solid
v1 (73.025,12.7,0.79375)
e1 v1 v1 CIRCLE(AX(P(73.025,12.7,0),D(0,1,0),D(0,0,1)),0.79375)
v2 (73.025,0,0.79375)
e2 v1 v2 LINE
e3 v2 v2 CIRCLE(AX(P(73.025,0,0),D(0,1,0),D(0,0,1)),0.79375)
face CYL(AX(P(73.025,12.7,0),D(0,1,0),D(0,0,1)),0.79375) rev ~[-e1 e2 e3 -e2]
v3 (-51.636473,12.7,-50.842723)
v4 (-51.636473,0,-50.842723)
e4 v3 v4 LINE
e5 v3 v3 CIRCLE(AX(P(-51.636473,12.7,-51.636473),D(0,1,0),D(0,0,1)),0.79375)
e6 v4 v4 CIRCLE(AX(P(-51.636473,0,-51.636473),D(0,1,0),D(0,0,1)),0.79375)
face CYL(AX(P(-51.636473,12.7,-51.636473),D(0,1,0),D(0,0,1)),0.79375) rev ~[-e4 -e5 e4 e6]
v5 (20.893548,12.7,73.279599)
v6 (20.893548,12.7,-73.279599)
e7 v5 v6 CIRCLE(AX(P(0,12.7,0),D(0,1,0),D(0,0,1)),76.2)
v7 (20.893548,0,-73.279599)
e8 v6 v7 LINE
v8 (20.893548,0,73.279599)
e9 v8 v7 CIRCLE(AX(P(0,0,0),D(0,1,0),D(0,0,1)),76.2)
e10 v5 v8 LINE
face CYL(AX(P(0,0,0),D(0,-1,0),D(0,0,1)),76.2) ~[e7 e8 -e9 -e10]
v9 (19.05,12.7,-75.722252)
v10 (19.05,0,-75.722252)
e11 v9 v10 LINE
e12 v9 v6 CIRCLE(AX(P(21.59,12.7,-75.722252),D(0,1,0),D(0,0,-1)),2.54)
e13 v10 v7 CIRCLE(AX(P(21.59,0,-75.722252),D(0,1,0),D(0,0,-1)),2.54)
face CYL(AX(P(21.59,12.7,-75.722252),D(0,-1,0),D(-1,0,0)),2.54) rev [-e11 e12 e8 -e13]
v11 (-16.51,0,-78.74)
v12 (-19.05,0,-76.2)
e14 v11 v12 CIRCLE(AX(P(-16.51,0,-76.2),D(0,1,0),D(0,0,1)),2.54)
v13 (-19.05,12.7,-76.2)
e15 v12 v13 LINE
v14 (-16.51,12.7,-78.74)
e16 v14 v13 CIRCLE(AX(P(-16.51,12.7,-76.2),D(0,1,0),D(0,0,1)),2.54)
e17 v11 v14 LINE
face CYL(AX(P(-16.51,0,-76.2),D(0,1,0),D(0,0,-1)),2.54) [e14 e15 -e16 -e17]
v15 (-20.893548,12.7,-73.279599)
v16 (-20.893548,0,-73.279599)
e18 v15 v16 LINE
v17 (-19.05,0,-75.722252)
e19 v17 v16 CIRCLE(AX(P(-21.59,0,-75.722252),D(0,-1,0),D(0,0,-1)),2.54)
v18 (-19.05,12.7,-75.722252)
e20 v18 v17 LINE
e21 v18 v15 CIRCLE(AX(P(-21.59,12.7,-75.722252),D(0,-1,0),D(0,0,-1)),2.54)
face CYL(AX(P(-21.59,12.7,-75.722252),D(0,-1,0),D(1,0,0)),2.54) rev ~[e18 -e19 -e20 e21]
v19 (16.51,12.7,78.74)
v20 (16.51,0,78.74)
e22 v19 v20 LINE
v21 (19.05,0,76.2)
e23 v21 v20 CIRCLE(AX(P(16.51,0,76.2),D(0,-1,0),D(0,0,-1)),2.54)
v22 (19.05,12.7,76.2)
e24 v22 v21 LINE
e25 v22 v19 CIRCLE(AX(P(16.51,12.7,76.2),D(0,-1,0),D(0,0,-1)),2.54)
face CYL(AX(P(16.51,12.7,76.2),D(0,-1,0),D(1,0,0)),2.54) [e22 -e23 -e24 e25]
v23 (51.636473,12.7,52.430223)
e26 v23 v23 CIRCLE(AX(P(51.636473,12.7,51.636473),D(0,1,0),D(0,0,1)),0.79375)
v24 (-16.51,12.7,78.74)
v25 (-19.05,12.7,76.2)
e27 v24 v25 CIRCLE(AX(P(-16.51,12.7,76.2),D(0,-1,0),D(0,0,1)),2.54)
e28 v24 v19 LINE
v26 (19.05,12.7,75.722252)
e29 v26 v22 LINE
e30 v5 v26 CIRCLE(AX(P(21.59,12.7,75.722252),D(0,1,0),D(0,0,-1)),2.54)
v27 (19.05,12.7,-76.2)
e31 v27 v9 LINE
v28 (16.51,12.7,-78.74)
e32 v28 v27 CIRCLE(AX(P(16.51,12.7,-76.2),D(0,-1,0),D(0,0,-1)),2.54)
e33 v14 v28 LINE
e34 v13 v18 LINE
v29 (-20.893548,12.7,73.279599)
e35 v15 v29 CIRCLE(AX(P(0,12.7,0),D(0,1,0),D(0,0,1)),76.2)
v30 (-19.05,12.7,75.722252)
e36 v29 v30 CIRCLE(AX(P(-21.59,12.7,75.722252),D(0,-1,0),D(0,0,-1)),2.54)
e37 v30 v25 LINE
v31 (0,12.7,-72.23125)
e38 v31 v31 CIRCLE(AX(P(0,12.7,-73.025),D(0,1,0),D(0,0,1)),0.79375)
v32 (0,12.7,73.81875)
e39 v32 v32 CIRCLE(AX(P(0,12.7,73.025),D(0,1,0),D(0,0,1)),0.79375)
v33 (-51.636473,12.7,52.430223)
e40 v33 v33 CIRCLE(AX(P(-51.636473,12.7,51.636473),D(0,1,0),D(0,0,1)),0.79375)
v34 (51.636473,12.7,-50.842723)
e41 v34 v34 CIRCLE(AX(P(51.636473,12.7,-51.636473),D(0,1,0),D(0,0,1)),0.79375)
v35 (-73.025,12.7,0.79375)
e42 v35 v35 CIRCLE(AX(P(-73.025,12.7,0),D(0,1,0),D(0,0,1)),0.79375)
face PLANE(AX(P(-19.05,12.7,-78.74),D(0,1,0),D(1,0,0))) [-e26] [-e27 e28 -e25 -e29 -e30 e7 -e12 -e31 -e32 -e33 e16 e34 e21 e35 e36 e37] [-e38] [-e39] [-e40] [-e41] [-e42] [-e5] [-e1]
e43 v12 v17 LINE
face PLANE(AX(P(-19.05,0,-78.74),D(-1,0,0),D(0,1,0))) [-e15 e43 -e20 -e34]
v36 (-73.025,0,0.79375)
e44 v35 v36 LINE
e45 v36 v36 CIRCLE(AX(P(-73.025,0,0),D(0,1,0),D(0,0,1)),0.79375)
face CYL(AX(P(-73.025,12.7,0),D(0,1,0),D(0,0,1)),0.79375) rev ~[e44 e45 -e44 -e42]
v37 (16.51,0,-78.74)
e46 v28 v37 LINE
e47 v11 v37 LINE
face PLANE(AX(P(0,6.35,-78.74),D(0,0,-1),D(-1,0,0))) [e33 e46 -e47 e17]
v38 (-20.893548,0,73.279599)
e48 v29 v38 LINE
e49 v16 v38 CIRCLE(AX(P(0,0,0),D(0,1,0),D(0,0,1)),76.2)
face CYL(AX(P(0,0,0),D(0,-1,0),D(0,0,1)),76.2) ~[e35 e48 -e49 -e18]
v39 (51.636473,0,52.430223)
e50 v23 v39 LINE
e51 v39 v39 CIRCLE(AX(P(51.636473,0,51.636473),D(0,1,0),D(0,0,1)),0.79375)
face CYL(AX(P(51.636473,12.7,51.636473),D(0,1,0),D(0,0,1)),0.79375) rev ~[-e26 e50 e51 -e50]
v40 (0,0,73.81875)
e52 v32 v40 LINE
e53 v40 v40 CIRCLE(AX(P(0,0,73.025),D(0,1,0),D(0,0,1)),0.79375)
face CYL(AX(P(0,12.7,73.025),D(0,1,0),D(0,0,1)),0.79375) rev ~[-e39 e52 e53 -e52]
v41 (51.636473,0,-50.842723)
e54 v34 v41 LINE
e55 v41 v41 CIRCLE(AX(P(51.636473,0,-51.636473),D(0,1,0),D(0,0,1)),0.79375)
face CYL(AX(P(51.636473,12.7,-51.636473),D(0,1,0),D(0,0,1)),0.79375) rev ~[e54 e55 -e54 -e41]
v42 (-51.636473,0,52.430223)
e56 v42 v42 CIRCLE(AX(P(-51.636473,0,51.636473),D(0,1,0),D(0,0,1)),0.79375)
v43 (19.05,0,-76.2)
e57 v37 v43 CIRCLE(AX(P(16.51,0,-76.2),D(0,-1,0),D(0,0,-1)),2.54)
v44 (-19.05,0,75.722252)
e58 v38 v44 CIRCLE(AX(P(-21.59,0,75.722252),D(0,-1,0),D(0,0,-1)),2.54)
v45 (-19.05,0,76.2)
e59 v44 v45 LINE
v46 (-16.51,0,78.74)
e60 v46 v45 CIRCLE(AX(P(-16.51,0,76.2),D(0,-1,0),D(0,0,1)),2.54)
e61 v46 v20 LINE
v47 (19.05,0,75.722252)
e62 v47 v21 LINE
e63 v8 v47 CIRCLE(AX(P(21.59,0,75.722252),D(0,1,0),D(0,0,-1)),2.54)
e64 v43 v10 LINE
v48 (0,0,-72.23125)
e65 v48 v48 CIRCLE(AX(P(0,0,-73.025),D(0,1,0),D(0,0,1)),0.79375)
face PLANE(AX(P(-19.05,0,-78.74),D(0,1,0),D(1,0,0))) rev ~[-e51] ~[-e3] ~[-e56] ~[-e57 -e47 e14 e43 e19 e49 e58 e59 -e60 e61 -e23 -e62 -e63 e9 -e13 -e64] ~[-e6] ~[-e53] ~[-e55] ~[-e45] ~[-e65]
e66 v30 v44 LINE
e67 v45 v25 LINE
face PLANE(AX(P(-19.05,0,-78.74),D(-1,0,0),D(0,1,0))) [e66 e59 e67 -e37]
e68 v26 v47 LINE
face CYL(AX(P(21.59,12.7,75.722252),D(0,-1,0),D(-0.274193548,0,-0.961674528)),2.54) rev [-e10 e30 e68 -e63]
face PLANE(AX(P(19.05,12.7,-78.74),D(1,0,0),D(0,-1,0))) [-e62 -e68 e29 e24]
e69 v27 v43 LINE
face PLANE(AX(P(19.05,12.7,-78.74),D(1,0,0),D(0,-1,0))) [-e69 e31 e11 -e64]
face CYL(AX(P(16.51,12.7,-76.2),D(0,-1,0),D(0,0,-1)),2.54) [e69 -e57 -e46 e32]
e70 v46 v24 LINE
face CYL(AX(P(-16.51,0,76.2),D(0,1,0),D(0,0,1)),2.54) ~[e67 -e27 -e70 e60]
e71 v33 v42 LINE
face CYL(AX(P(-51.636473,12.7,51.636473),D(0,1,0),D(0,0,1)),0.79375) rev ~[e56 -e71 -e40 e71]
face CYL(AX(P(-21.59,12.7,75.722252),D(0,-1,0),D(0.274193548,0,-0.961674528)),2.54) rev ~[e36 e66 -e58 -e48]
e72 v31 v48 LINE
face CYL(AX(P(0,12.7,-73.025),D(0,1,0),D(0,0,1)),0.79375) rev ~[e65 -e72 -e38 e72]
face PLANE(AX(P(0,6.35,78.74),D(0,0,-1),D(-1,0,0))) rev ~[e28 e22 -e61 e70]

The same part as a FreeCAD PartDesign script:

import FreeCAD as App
import Part
import Sketcher
Q = App.Units.Quantity


def edges_at(feature, points):
    """Names of the edges that pass closest to the given points."""
    edges = feature.Shape.Edges
    near = lambda p: min(range(len(edges)), key=lambda i: edges[i].distToShape(Part.Vertex(*p))[0])
    return sorted({f"Edge{near(p) + 1}" for p in points})


def add_polygon(sketch, points):
    """Adds a closed chain of lines whose ends are joined by coincident constraints."""
    first, n = sketch.GeometryCount, len(points)
    for a, b in zip(points, points[1:] + points[:1]):
        sketch.addGeometry(Part.LineSegment(App.Vector(*a, 0), App.Vector(*b, 0)), False)
    for i in range(n):
        sketch.addConstraint(Sketcher.Constraint("Coincident", first + i, 2, first + (i + 1) % n, 1))

doc = App.newDocument("Part")
body = doc.addObject("PartDesign::Body", "Body")

sketch1 = body.newObject("Sketcher::SketchObject", "Sketch")
sketch1.AttachmentSupport = (doc.getObject("XZ_Plane"), [""])
sketch1.MapMode = "FlatFace"
sketch1.addGeometry(Part.Circle(App.Vector(0, 0, 0), App.Vector(0, 0, 1), 76), False)
sketch1.addConstraint([
    Sketcher.Constraint("Coincident", 0, 3, -1, 1),
    Sketcher.Constraint("Diameter", 0, Q("6 in")),
])
pad1 = body.newObject("PartDesign::Pad", "Pad")
pad1.Profile = sketch1
pad1.Length = Q("0.5 in")
pad1.Reversed = True

sketch2 = body.newObject("Sketcher::SketchObject", "Sketch001")
sketch2.AttachmentSupport = (doc.getObject("XY_Plane"), [""])
sketch2.MapMode = "FlatFace"
add_polygon(sketch2, [(-19, 0), (19, 0), (19, 13), (-19, 13)])
sketch2.addConstraint([
    Sketcher.Constraint("Horizontal", 0),
    Sketcher.Constraint("Vertical", 1),
    Sketcher.Constraint("Horizontal", 2),
    Sketcher.Constraint("Vertical", 3),
    Sketcher.Constraint("Symmetric", 0, 2, 3, 2, -1, 1),
    Sketcher.Constraint("DistanceX", 0, 1, 0, 2, Q("1.5 in")),
    Sketcher.Constraint("DistanceY", 1, 1, 1, 2, Q("0.5 in")),
])
pad2 = body.newObject("PartDesign::Pad", "Pad001")
pad2.Profile = sketch2
pad2.Type = "TwoLengths"
pad2.Length = Q("3.1 in")
pad2.Length2 = Q("3.1 in")
doc.recompute()

fillet = body.newObject("PartDesign::Fillet", "Fillet")
fillet.Base = (pad2, edges_at(pad2, [
    (-19.05, 6.35, -78.74),
    (19.05, 6.35, -78.74),
    (-19.05, 6.35, -73.78),
    (-19.05, 6.35, 73.78),
    (19.05, 6.35, 73.78),
    (19.05, 6.35, -73.78),
    (19.05, 6.35, 78.74),
    (-19.05, 6.35, 78.74),
]))
fillet.Radius = Q("0.1 in")

sketch3 = body.newObject("Sketcher::SketchObject", "Sketch002")
sketch3.AttachmentSupport = (doc.getObject("XZ_Plane"), [""])
sketch3.MapMode = "FlatFace"
sketch3.AttachmentOffset = App.Placement(App.Vector(0, 0, -0.5 * 25.4), App.Rotation())
sketch3.addGeometry([
    Part.Circle(App.Vector(73, 0, 0), App.Vector(0, 0, 1), 0.8),
    Part.Circle(App.Vector(51.6, 51.6, 0), App.Vector(0, 0, 1), 0.8),
    Part.Circle(App.Vector(0, 73, 0), App.Vector(0, 0, 1), 0.8),
    Part.Circle(App.Vector(-51.6, 51.6, 0), App.Vector(0, 0, 1), 0.8),
    Part.Circle(App.Vector(-73, 0, 0), App.Vector(0, 0, 1), 0.8),
    Part.Circle(App.Vector(-51.6, -51.6, 0), App.Vector(0, 0, 1), 0.8),
    Part.Circle(App.Vector(0, -73, 0), App.Vector(0, 0, 1), 0.8),
    Part.Circle(App.Vector(51.6, -51.6, 0), App.Vector(0, 0, 1), 0.8),
], False)
sketch3.addConstraint([
    Sketcher.Constraint("Equal", 0, 1),
    Sketcher.Constraint("Equal", 1, 2),
    Sketcher.Constraint("Equal", 2, 3),
    Sketcher.Constraint("Equal", 3, 4),
    Sketcher.Constraint("Equal", 4, 5),
    Sketcher.Constraint("Equal", 5, 6),
    Sketcher.Constraint("Equal", 6, 7),
    Sketcher.Constraint("Symmetric", 0, 3, 4, 3, -1, 1),
    Sketcher.Constraint("Symmetric", 1, 3, 5, 3, -1, 1),
    Sketcher.Constraint("Symmetric", 2, 3, 6, 3, -1, 1),
    Sketcher.Constraint("Symmetric", 3, 3, 7, 3, -1, 1),
    Sketcher.Constraint("Symmetric", 1, 3, 3, 3, -2),
    Sketcher.Constraint("PointOnObject", 0, 3, -1),
    Sketcher.Constraint("PointOnObject", 2, 3, -2),
    Sketcher.Constraint("Diameter", 0, Q("0.0625 in")),
    Sketcher.Constraint("DistanceX", 4, 3, 0, 3, Q("5.75 in")),
    Sketcher.Constraint("DistanceY", -1, 1, 2, 3, Q("2.875 in")),
    Sketcher.Constraint("DistanceX", -1, 1, 1, 3, Q("51.636473 mm")),
    Sketcher.Constraint("DistanceY", -1, 1, 1, 3, Q("51.636473 mm")),
])
pocket1 = body.newObject("PartDesign::Pocket", "Pocket")
pocket1.Profile = sketch3
pocket1.Type = "ThroughAll"
pocket1.Reversed = True

doc.recompute()
